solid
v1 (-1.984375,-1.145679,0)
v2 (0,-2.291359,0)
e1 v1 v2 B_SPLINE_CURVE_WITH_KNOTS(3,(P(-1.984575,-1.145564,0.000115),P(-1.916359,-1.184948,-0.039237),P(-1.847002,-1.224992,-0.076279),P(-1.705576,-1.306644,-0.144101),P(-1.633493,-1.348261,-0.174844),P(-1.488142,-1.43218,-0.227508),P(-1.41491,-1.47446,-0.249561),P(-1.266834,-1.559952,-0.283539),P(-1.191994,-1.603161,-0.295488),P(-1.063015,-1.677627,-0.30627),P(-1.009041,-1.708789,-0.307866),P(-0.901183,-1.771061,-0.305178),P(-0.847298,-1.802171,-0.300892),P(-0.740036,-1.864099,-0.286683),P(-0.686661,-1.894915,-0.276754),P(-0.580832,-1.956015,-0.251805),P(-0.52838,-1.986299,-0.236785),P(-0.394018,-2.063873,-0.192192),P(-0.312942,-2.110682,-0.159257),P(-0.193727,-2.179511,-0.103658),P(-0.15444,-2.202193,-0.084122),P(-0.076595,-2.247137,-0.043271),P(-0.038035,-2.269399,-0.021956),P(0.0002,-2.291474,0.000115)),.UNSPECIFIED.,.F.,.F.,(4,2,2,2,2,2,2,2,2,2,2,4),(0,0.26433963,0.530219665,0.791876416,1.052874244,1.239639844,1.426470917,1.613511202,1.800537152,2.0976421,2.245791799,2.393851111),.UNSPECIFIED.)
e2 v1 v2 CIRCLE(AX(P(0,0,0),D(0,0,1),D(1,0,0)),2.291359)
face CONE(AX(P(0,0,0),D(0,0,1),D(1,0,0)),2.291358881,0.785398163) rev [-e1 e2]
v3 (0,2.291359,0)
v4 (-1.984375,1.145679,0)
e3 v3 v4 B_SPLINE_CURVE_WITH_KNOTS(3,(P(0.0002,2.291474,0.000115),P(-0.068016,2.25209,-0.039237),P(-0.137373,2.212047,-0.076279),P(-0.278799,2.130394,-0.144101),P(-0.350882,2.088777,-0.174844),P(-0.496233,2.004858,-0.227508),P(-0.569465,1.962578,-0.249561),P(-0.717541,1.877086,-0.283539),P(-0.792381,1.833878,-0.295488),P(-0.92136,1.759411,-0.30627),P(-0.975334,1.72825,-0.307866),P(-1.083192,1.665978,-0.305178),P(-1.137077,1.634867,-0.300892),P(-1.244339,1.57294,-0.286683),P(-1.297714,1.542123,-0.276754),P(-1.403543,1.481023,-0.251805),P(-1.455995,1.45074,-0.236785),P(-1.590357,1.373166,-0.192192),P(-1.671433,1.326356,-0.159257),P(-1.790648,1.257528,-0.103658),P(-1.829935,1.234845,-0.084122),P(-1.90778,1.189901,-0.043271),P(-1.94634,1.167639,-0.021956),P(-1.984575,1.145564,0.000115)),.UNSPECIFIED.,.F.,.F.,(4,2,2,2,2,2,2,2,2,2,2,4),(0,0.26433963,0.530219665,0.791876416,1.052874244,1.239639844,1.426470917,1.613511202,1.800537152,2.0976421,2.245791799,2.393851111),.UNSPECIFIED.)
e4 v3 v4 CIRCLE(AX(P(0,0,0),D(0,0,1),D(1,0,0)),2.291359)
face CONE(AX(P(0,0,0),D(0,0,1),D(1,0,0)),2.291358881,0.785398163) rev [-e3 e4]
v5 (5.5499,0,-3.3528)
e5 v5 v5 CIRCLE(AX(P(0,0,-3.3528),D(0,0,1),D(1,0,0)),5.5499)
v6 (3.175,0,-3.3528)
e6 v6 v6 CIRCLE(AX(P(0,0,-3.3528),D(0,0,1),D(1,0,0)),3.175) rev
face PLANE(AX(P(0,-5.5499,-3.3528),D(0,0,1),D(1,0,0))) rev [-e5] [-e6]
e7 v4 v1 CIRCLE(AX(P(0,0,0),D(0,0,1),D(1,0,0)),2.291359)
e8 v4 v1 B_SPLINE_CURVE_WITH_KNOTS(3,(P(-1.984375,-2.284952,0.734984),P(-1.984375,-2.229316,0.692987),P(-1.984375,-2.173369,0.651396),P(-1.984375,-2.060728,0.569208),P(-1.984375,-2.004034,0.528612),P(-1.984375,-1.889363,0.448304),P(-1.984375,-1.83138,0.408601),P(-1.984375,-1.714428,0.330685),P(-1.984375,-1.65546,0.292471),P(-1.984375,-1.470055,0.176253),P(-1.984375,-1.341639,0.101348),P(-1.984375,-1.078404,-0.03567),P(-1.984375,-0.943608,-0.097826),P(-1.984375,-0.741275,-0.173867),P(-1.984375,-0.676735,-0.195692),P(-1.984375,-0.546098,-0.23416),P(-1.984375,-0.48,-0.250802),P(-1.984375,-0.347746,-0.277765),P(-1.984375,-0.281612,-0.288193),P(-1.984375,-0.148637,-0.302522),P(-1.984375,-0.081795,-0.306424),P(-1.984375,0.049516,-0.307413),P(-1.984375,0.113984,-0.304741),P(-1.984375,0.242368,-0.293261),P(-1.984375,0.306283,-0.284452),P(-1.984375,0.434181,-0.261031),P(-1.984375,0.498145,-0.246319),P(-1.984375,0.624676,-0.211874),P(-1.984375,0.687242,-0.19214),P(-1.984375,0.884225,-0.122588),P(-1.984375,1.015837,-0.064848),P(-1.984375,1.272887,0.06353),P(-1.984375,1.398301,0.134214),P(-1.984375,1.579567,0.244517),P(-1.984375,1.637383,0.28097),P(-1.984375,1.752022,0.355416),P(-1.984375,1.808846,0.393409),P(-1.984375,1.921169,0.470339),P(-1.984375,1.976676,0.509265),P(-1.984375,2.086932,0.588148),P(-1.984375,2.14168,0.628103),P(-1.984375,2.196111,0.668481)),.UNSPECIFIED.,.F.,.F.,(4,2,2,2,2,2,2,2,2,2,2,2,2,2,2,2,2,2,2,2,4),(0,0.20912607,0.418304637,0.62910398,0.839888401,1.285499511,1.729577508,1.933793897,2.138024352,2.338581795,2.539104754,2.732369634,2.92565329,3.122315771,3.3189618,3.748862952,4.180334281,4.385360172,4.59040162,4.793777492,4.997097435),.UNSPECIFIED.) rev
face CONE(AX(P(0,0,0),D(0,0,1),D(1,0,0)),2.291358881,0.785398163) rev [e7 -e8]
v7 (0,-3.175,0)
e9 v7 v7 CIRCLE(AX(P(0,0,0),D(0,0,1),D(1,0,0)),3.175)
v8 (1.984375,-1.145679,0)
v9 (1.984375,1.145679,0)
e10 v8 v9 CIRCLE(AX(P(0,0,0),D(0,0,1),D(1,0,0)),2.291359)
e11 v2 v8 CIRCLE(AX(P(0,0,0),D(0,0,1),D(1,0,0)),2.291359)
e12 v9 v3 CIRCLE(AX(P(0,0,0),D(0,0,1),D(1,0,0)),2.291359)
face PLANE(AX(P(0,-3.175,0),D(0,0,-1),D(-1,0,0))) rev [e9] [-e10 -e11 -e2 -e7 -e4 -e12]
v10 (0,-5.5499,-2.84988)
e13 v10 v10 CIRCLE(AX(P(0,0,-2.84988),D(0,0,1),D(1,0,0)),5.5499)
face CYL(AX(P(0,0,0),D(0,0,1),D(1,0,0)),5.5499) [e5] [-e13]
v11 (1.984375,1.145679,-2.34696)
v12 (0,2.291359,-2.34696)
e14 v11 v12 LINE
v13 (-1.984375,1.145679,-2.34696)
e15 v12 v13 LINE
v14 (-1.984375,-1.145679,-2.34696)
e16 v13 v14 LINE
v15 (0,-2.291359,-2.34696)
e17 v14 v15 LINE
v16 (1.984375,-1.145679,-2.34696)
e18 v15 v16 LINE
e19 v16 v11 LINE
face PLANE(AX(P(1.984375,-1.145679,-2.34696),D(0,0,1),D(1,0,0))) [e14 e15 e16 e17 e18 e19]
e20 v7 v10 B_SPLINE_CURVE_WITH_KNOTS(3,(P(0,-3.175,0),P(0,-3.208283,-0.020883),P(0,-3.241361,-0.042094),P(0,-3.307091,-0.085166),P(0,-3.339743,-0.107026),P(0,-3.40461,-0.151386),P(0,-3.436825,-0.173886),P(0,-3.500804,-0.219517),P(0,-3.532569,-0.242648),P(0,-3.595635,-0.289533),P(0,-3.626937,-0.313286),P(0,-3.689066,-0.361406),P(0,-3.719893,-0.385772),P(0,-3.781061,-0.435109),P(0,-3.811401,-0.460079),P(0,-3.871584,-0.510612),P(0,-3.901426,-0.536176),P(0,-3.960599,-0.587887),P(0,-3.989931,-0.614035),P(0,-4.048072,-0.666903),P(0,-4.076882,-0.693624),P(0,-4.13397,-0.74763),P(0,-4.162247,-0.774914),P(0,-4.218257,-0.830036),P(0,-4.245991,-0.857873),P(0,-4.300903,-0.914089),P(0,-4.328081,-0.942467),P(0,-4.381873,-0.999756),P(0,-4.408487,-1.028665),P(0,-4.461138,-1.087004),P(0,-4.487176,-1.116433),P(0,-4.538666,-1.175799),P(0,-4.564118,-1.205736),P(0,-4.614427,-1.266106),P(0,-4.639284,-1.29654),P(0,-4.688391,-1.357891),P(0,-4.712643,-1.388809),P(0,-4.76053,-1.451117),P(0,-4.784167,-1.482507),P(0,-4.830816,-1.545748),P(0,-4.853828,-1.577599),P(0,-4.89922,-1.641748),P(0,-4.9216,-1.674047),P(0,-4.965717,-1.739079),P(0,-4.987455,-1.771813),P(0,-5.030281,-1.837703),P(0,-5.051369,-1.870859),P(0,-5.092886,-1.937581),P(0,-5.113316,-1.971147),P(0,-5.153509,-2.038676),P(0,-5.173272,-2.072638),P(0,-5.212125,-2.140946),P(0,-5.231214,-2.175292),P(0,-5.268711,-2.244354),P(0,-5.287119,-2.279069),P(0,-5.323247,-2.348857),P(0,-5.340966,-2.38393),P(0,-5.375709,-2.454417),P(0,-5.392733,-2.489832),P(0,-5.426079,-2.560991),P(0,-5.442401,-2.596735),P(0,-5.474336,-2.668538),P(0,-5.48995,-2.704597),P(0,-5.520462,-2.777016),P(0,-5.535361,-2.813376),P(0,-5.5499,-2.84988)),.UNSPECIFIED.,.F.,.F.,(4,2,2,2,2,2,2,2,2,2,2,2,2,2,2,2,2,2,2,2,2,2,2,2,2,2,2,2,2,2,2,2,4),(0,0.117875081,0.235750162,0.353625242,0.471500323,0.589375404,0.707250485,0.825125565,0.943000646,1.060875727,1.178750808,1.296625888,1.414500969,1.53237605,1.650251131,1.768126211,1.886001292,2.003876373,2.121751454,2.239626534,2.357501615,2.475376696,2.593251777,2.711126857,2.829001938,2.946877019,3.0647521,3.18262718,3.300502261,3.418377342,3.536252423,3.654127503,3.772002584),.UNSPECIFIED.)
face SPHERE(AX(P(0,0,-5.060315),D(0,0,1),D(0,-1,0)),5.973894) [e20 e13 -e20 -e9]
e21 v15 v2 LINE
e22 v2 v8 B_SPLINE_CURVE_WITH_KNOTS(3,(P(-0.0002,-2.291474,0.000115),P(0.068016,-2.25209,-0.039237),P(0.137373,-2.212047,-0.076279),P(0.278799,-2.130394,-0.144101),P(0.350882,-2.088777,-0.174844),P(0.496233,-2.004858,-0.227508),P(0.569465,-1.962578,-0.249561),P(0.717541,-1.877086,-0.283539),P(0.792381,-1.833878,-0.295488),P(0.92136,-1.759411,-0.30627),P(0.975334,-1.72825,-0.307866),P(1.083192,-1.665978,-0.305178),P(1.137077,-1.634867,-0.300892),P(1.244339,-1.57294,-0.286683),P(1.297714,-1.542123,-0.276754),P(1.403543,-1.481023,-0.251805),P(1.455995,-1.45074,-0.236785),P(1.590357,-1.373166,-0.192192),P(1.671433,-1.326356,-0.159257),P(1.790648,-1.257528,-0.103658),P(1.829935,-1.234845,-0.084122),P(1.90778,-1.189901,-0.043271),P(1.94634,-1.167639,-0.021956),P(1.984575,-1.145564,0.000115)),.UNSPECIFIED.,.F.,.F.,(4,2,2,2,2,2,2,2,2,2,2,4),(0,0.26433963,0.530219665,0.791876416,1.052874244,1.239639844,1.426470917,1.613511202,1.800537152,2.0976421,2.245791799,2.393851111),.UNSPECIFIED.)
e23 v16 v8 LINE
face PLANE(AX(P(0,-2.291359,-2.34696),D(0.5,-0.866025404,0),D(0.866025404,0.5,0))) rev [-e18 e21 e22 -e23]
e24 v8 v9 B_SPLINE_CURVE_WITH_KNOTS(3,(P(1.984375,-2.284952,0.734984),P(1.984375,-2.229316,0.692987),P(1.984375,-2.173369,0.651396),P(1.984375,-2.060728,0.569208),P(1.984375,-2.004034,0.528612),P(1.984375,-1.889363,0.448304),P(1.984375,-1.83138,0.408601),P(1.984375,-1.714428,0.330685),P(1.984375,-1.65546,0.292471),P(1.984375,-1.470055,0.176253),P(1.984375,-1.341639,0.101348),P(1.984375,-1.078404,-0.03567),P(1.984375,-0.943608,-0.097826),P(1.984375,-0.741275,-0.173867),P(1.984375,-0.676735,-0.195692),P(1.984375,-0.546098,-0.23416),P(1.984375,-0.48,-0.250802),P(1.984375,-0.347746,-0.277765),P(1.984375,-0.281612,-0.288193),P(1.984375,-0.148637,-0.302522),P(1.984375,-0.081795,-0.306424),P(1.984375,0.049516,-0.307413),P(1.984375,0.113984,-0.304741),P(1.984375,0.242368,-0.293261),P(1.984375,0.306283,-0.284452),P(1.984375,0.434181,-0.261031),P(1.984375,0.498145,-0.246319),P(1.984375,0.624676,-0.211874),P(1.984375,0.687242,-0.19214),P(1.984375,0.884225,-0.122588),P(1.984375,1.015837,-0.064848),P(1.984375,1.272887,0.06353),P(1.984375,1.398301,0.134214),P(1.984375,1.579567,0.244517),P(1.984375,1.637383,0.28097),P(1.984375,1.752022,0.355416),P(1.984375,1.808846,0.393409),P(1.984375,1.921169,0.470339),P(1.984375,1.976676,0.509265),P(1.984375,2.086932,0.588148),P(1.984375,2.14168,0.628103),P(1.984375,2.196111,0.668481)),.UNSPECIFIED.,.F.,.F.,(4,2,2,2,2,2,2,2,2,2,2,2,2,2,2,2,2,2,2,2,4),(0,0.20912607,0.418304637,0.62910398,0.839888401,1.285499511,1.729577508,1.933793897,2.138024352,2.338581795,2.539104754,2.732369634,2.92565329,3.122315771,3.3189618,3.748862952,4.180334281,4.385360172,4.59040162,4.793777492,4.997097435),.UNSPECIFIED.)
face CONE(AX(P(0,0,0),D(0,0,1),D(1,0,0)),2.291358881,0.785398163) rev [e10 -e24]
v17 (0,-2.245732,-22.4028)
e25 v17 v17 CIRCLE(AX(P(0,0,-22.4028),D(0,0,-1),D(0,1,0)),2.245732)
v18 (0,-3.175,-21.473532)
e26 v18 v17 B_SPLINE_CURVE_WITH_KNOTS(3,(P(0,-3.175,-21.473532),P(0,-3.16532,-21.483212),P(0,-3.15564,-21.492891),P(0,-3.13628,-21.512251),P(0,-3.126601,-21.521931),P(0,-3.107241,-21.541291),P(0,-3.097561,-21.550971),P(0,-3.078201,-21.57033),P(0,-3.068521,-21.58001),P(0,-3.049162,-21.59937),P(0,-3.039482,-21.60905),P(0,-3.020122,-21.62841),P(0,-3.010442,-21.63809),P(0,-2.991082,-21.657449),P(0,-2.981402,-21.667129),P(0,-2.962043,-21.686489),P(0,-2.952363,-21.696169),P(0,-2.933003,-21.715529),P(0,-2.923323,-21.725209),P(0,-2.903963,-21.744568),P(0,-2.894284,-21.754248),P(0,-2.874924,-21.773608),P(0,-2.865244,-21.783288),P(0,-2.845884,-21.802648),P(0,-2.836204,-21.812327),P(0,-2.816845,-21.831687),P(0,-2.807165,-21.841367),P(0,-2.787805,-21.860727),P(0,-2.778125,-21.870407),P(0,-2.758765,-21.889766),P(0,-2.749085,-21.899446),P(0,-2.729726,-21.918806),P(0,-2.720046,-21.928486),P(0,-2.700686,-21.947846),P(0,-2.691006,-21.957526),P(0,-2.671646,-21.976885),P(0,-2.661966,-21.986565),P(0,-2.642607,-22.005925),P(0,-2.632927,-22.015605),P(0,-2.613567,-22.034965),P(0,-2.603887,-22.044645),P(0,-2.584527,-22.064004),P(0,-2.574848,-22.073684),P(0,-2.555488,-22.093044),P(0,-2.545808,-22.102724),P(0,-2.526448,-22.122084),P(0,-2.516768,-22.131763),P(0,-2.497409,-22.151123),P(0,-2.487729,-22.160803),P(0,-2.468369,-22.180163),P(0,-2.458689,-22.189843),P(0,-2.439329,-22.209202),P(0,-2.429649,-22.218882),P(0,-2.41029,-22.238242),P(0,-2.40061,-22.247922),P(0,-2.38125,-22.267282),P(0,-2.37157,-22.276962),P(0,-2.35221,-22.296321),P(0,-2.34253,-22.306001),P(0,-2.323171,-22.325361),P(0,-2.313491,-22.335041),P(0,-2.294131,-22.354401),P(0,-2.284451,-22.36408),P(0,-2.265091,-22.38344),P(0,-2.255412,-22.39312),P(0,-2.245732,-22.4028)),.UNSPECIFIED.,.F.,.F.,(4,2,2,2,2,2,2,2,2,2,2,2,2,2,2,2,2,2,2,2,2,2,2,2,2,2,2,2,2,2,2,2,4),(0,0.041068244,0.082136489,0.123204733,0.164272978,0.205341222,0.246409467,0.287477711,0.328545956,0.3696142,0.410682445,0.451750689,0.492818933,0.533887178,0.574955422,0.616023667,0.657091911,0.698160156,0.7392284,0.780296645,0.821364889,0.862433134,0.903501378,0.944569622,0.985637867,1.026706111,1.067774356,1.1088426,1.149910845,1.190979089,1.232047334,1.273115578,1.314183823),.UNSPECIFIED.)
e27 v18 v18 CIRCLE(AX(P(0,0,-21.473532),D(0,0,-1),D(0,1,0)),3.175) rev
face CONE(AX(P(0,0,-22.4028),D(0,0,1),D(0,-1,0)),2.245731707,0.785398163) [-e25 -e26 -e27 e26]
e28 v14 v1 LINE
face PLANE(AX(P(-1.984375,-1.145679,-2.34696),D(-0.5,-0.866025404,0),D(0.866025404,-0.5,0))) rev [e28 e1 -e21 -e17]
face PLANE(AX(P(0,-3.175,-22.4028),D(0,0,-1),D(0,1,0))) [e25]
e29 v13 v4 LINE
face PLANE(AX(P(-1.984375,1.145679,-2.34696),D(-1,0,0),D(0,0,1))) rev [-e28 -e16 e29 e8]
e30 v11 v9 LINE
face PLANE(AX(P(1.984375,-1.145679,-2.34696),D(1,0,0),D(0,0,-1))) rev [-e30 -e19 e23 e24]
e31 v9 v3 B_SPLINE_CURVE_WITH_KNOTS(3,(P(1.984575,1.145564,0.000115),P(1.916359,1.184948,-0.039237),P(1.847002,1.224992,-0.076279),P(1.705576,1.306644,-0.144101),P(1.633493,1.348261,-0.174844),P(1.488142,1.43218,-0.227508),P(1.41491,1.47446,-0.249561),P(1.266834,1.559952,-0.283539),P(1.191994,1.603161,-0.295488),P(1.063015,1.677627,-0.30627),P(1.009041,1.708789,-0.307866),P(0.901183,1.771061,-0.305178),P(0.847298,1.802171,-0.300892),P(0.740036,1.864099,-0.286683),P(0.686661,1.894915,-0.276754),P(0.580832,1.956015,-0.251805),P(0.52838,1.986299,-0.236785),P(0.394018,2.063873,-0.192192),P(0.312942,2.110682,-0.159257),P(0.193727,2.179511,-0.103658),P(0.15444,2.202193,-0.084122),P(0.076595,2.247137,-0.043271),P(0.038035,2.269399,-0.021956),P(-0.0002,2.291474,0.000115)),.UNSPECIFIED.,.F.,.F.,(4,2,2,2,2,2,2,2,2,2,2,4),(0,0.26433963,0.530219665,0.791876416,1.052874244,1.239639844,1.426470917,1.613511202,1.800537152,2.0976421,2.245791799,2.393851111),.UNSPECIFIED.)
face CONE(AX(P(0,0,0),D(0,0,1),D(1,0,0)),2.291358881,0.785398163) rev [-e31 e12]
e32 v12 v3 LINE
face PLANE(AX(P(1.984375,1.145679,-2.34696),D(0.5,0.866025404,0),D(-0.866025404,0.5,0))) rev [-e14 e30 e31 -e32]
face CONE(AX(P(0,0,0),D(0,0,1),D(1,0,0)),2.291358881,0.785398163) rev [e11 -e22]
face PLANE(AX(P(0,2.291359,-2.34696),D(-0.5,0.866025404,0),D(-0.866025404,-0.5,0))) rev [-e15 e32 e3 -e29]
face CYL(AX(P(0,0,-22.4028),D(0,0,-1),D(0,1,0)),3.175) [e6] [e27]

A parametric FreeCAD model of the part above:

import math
import FreeCAD as App
import Part
import Sketcher
from FreeCAD import Vector
Q = App.Units.Quantity


def edges_at(feature, points):
    """Names of the edges that pass closest to the given points."""
    edges = feature.Shape.Edges
    near = lambda p: min(range(len(edges)), key=lambda i: edges[i].distToShape(Part.Vertex(*p))[0])
    return sorted({f"Edge{near(p) + 1}" for p in points})


def add_polygon(sketch, points):
    """Adds a closed chain of lines whose ends are joined by coincident constraints."""
    first, n = sketch.GeometryCount, len(points)
    for a, b in zip(points, points[1:] + points[:1]):
        sketch.addGeometry(Part.LineSegment(App.Vector(*a, 0), App.Vector(*b, 0)), False)
    for i in range(n):
        sketch.addConstraint(Sketcher.Constraint("Coincident", first + i, 2, first + (i + 1) % n, 1))

doc = App.newDocument("Part")
body = doc.addObject("PartDesign::Body", "Body")

# Sketch on YZ plane
sketch1 = body.newObject("Sketcher::SketchObject", "Sketch")
sketch1.AttachmentSupport = (doc.getObject("YZ_Plane"), [""])
sketch1.MapMode = "FlatFace"
add_polygon(sketch1, [(3.175, -3.3528), (0, -3.3528), (0, -22.4028), (3.175, -22.4028)])  # lines 0-3
sketch1.addConstraint(Sketcher.Constraint("Horizontal", 0))
sketch1.addConstraint(Sketcher.Constraint("Vertical", 1))
sketch1.addConstraint(Sketcher.Constraint("Horizontal", 2))
sketch1.addConstraint(Sketcher.Constraint("Vertical", 3))
sketch1.addConstraint(Sketcher.Constraint("PointOnObject", 0, 2, -2))
sketch1.addConstraint(Sketcher.Constraint("DistanceY", 1, 2, 1, 1, Q("0.75 in")))
sketch1.addConstraint(Sketcher.Constraint("DistanceX", 0, 2, 0, 1, Q("0.125 in")))
sketch1.addConstraint(Sketcher.Constraint("DistanceY", 0, 2, -1, 1, Q("0.132 in")))
revolution = body.newObject("PartDesign::Revolution", "Revolution")
revolution.Profile = sketch1
revolution.ReferenceAxis = (sketch1, ["V_Axis"])
revolution.Angle = 360
doc.recompute()

chamfer = body.newObject("PartDesign::Chamfer", "Chamfer")
chamfer.Base = (revolution, edges_at(revolution, [(0, -3.175, -22.403)]))
chamfer.Size = 0.929268

# Sketch on YZ plane
sketch2 = body.newObject("Sketcher::SketchObject", "Sketch001")
sketch2.AttachmentSupport = (doc.getObject("YZ_Plane"), [""])
sketch2.MapMode = "FlatFace"
sketch2.addGeometry(Part.LineSegment(Vector(5.5499, -3.3528, 0), Vector(5.5499, -2.84988, 0)), False)
sketch2.addGeometry(Part.ArcOfCircle(Part.Circle(Vector(0, -5.060315, 0), Vector(0, 0, 1), 5.973894), math.radians(21.716589), math.radians(57.894553)), False)
sketch2.addGeometry(Part.LineSegment(Vector(3.175, 0, 0), Vector(0, 0, 0)), False)
sketch2.addGeometry(Part.LineSegment(Vector(0, 0, 0), Vector(0, -3.3528, 0)), False)
sketch2.addGeometry(Part.LineSegment(Vector(0, -3.3528, 0), Vector(5.5499, -3.3528, 0)), False)
sketch2.addConstraint(Sketcher.Constraint("Coincident", 0, 2, 1, 1))
sketch2.addConstraint(Sketcher.Constraint("Coincident", 1, 2, 2, 1))
sketch2.addConstraint(Sketcher.Constraint("Coincident", 2, 2, 3, 1))
sketch2.addConstraint(Sketcher.Constraint("Coincident", 3, 2, 4, 1))
sketch2.addConstraint(Sketcher.Constraint("Coincident", 4, 2, 0, 1))
sketch2.addConstraint(Sketcher.Constraint("Vertical", 0))
sketch2.addConstraint(Sketcher.Constraint("Horizontal", 2))
sketch2.addConstraint(Sketcher.Constraint("Vertical", 3))
sketch2.addConstraint(Sketcher.Constraint("Horizontal", 4))
sketch2.addConstraint(Sketcher.Constraint("Coincident", 2, 2, -1, 1))
sketch2.addConstraint(Sketcher.Constraint("PointOnObject", 1, 3, -2))
sketch2.addConstraint(Sketcher.Constraint("DistanceX", 2, 2, 2, 1, Q("0.125 in")))
sketch2.addConstraint(Sketcher.Constraint("DistanceY", 3, 2, 3, 1, Q("0.132 in")))
sketch2.addConstraint(Sketcher.Constraint("DistanceX", 4, 1, 4, 2, Q("0.2185 in")))
sketch2.addConstraint(Sketcher.Constraint("DistanceY", 0, 1, 0, 2, Q("0.0198 in")))
revolution2 = body.newObject("PartDesign::Revolution", "Revolution001")
revolution2.Profile = sketch2
revolution2.ReferenceAxis = (sketch2, ["V_Axis"])
revolution2.Angle = 360

# Sketch on XY plane
sketch3 = body.newObject("Sketcher::SketchObject", "Sketch002")
sketch3.AttachmentSupport = (doc.getObject("XY_Plane"), [""])
sketch3.MapMode = "FlatFace"
add_polygon(sketch3, [(1.984375, -1.145679), (1.984375, 1.145679), (0, 2.291359), (-1.984375, 1.145679), (-1.984375, -1.145679), (0, -2.291359)])  # lines 0-5
sketch3.addConstraint(Sketcher.Constraint("Vertical", 0))
sketch3.addConstraint(Sketcher.Constraint("Vertical", 3))
sketch3.addConstraint(Sketcher.Constraint("Symmetric", 0, 2, 3, 2, -1, 1))
sketch3.addConstraint(Sketcher.Constraint("Symmetric", 1, 2, 4, 2, -1, 1))
sketch3.addConstraint(Sketcher.Constraint("PointOnObject", 1, 2, -2))
sketch3.addConstraint(Sketcher.Constraint("Parallel", 2, 5))
sketch3.addConstraint(Sketcher.Constraint("Horizontal", 0, 2, 2, 2))
sketch3.addConstraint(Sketcher.Constraint("Angle", 1, Q("150 deg")))
sketch3.addConstraint(Sketcher.Constraint("DistanceX", -1, 1, 0, 2, Q("0.078125 in")))
sketch3.addConstraint(Sketcher.Constraint("DistanceY", 0, 1, 0, 2, 2.291359))
pocket1 = body.newObject("PartDesign::Pocket", "Pocket")
pocket1.Profile = sketch3
pocket1.Length = Q("0.0924 in")

# Sketch on YZ plane
sketch4 = body.newObject("Sketcher::SketchObject", "Sketch003")
sketch4.AttachmentSupport = (doc.getObject("YZ_Plane"), [""])
sketch4.MapMode = "FlatFace"
add_polygon(sketch4, [(0, 0), (-2.291359, 0), (0, -2.291359)])  # lines 0-2
sketch4.addConstraint(Sketcher.Constraint("Horizontal", 0))
sketch4.addConstraint(Sketcher.Constraint("Vertical", 2))
sketch4.addConstraint(Sketcher.Constraint("Coincident", 2, 2, -1, 1))
sketch4.addConstraint(Sketcher.Constraint("Equal", 0, 2))
sketch4.addConstraint(Sketcher.Constraint("DistanceX", 0, 2, 0, 1, 2.291359))
groove = body.newObject("PartDesign::Groove", "Groove")
groove.Profile = sketch4
groove.ReferenceAxis = (sketch4, ["V_Axis"])
groove.Angle = 360

doc.recompute()
